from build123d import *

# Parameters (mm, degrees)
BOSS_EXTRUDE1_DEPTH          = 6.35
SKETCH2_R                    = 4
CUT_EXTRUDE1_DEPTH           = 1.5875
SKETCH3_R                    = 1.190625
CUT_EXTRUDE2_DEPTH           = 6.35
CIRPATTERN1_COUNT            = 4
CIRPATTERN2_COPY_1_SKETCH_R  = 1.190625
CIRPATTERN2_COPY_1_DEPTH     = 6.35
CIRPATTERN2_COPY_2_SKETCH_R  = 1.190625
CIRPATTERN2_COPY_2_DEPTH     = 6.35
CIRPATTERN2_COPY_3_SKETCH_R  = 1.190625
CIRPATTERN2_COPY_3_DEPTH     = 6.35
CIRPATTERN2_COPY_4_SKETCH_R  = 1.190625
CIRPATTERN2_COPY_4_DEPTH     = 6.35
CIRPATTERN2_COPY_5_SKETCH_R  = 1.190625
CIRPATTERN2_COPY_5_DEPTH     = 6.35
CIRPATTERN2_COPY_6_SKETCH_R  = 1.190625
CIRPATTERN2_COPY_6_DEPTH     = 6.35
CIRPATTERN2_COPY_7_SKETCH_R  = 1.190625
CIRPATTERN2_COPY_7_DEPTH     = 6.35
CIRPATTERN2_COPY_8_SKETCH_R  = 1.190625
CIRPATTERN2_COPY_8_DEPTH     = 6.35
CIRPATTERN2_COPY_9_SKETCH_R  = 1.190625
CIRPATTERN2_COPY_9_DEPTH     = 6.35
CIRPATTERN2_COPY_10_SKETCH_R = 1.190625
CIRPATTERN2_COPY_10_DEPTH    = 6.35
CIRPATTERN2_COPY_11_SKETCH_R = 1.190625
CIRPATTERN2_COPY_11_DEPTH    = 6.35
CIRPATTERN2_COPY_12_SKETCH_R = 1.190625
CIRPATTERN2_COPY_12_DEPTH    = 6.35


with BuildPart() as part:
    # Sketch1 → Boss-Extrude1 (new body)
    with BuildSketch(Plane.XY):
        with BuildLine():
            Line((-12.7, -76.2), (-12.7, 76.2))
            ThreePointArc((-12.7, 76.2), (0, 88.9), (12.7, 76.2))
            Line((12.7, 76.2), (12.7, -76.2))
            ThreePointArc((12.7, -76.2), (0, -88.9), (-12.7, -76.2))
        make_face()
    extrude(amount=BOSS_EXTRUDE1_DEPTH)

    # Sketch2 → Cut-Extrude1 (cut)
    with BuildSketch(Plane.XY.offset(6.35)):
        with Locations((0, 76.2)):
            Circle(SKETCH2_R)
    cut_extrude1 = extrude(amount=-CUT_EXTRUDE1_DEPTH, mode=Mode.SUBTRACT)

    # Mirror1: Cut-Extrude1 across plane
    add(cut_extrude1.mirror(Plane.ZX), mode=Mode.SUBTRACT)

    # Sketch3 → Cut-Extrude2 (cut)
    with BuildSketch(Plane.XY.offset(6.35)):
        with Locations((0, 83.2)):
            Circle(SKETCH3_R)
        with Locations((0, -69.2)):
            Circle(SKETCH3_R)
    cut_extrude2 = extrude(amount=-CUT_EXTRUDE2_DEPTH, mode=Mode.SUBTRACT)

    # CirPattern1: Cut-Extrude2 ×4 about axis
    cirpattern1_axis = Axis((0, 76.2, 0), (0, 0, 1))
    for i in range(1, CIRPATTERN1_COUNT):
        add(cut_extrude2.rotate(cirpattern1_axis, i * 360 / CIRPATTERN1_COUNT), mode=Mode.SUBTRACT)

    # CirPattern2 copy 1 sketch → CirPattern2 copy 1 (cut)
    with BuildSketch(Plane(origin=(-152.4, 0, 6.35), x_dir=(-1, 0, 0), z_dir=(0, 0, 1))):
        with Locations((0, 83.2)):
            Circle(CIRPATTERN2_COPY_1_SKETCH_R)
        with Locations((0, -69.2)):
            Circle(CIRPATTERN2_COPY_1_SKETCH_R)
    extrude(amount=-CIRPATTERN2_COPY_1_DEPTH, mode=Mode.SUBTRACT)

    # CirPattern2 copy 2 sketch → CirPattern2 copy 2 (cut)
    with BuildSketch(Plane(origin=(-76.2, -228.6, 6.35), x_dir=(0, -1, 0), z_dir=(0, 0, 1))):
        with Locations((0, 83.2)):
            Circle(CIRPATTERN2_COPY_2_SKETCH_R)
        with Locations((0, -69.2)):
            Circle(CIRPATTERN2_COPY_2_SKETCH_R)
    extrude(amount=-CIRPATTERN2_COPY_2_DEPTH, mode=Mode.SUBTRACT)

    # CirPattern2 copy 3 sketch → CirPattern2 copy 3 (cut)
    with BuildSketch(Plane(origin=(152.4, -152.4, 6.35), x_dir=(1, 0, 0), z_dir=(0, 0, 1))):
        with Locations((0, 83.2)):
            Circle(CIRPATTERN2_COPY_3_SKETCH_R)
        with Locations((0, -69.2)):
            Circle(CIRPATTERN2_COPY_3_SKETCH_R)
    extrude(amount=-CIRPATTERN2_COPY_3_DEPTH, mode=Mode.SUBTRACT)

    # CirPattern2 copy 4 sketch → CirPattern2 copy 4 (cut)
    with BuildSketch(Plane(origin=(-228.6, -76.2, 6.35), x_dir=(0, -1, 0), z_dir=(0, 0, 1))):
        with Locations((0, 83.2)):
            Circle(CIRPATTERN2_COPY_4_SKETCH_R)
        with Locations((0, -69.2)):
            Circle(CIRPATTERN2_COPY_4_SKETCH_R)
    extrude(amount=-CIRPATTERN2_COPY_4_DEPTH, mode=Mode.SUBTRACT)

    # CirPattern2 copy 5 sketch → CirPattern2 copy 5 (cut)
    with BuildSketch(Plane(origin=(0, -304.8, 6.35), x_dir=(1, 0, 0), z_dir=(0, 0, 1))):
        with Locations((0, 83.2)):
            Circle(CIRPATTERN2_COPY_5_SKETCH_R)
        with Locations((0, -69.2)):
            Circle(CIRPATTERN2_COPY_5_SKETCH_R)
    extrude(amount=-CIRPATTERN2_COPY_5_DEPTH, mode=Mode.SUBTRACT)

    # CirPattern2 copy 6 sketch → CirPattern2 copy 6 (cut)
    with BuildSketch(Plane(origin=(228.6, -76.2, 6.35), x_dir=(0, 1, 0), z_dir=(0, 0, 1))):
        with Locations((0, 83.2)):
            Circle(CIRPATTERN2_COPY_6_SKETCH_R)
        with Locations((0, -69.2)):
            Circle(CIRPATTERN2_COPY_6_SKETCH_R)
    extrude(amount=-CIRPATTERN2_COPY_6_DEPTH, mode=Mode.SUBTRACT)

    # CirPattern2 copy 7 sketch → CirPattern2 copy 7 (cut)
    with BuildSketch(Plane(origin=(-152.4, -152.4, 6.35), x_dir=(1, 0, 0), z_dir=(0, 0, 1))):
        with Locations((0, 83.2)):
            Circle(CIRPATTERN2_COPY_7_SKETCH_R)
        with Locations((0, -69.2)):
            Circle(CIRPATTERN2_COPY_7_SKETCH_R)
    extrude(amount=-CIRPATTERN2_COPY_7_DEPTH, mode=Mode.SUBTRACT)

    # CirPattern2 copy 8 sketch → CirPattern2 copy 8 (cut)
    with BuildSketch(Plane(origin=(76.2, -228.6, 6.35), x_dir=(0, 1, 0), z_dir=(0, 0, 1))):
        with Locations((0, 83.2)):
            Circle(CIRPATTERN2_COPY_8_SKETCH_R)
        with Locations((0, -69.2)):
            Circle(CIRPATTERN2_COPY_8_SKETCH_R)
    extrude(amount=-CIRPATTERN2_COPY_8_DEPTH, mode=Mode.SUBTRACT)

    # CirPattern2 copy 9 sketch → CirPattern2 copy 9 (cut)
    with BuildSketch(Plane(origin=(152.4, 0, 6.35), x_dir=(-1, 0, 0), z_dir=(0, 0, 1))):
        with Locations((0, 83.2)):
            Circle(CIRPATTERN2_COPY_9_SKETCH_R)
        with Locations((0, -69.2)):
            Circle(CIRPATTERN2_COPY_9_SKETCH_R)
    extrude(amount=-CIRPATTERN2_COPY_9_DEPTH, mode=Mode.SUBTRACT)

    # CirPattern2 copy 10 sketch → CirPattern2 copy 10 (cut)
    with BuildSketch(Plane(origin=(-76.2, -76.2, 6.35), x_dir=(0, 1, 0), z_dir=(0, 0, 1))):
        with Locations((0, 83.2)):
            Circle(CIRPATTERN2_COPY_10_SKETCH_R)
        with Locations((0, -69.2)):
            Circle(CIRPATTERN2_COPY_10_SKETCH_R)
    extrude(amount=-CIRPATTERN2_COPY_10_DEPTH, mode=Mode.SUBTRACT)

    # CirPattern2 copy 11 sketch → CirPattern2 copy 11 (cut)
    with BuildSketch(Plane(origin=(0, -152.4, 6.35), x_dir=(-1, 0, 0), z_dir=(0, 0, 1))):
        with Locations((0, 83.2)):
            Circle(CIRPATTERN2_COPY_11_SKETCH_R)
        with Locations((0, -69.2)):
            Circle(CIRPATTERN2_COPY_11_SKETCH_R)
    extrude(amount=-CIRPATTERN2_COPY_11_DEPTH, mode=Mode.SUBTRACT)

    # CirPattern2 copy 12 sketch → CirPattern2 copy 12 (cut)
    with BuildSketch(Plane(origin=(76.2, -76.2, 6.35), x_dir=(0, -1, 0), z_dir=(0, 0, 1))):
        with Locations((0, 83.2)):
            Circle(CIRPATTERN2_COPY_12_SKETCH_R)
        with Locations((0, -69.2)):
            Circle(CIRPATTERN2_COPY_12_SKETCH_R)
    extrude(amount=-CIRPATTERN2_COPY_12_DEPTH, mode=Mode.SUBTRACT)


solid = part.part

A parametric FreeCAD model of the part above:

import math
import FreeCAD as App
import Part
import Sketcher

V = App.Vector
Q = App.Units.Quantity

doc = App.newDocument("Part")
params = doc.addObject("Spreadsheet::Sheet", "Params")
for row, (alias, value) in enumerate([
    ("sketch1_radius", "0.5 in"),
    ("sketch1_height", "6 in"),
    ("pad1_length", "0.25 in"),
    ("pocket1_length", "0.0625 in"),
    ("sketch3_diameter", "0.09375 in"),
    ("pocket2_length", "0.25 in"),
    ("sketch4_diameter", "0.09375 in"),
    ("pocket3_length", "0.25 in"),
    ("sketch5_diameter", "0.09375 in"),
    ("pocket4_length", "0.25 in"),
    ("sketch6_diameter", "0.09375 in"),
    ("pocket5_length", "0.25 in"),
    ("sketch7_diameter", "0.09375 in"),
    ("pocket6_length", "0.25 in"),
    ("sketch8_diameter", "0.09375 in"),
    ("pocket7_length", "0.25 in"),
    ("sketch9_diameter", "0.09375 in"),
    ("pocket8_length", "0.25 in"),
    ("sketch10_diameter", "0.09375 in"),
    ("pocket9_length", "0.25 in"),
    ("sketch11_diameter", "0.09375 in"),
    ("pocket10_length", "0.25 in"),
    ("sketch12_diameter", "0.09375 in"),
    ("pocket11_length", "0.25 in"),
    ("sketch13_diameter", "0.09375 in"),
    ("pocket12_length", "0.25 in"),
    ("sketch14_diameter", "0.09375 in"),
    ("pocket13_length", "0.25 in"),
    ("sketch15_diameter", "0.09375 in"),
    ("pocket14_length", "0.25 in"),
], start=1):
    params.set(f"A{row}", alias)
    params.set(f"B{row}", "=" + value)
    params.setAlias(f"B{row}", alias)

body = doc.addObject("PartDesign::Body", "Body")

sketch1 = body.newObject("Sketcher::SketchObject", "Sketch")
sketch1.AttachmentSupport = (doc.getObject("XY_Plane"), [""])
sketch1.MapMode = "FlatFace"
sketch1.addGeometry(Part.LineSegment(V(-13, 76, 0), V(-13, -76, 0)), False)
sketch1.addGeometry(Part.ArcOfCircle(Part.Circle(V(0, -76, 0), V(0, 0, 1), 13), math.radians(180), math.radians(360)), False)
sketch1.addGeometry(Part.LineSegment(V(13, -76, 0), V(13, 76, 0)), False)
sketch1.addGeometry(Part.ArcOfCircle(Part.Circle(V(0, 76, 0), V(0, 0, 1), 13), math.radians(0), math.radians(180)), False)
sketch1.addConstraint(Sketcher.Constraint("Tangent", 0, 2, 1, 1))
sketch1.addConstraint(Sketcher.Constraint("Tangent", 1, 2, 2, 1))
sketch1.addConstraint(Sketcher.Constraint("Tangent", 2, 2, 3, 1))
sketch1.addConstraint(Sketcher.Constraint("Tangent", 3, 2, 0, 1))
sketch1.addConstraint(Sketcher.Constraint("Vertical", 0))
sketch1.addConstraint(Sketcher.Constraint("Vertical", 2))
sketch1.addConstraint(Sketcher.Constraint("Symmetric", 1, 3, 3, 3, -1, 1))
sketch1.addConstraint(Sketcher.Constraint("Radius", 1, Q("0.5 in")))
sketch1.addConstraint(Sketcher.Constraint("DistanceY", 0, 2, 0, 1, Q("6 in")))
sketch1.setExpression("Constraints[7]", "Params.sketch1_radius")
sketch1.setExpression("Constraints[8]", "Params.sketch1_height")
pad1 = body.newObject("PartDesign::Pad", "Pad")
pad1.Profile = sketch1
pad1.setExpression("Length", "Params.pad1_length")

sketch2 = body.newObject("Sketcher::SketchObject", "Sketch001")
sketch2.AttachmentSupport = (doc.getObject("XY_Plane"), [""])
sketch2.MapMode = "FlatFace"
sketch2.AttachmentOffset = App.Placement(V(0, 0, 0.25 * 25.4), App.Rotation())
sketch2.addGeometry(Part.Circle(V(0, 76.2, 0), V(0, 0, 1), 4), False)
sketch2.addConstraint(Sketcher.Constraint("PointOnObject", 0, 3, -2))
sketch2.addConstraint(Sketcher.Constraint("DistanceY", -1, 1, 0, 3, Q("3 in")))
sketch2.addConstraint(Sketcher.Constraint("Diameter", 0, Q("8 mm")))
pocket1 = body.newObject("PartDesign::Pocket", "Pocket")
pocket1.Profile = sketch2
pocket1.setExpression("Length", "Params.pocket1_length")
doc.recompute()

mirrored = body.newObject("PartDesign::Mirrored", "Mirrored")
mirrored.Originals = [pocket1]
mirrored.MirrorPlane = (doc.getObject("XZ_Plane"), [""])
body.Tip = mirrored

sketch3 = body.newObject("Sketcher::SketchObject", "Sketch002")
sketch3.AttachmentSupport = (doc.getObject("XY_Plane"), [""])
sketch3.MapMode = "FlatFace"
sketch3.AttachmentOffset = App.Placement(V(0, 0, 0.25 * 25.4), App.Rotation())
sketch3.addGeometry(Part.Circle(V(0, 83.2, 0), V(0, 0, 1), 1.2), False)
sketch3.addGeometry(Part.Circle(V(0, -69.2, 0), V(0, 0, 1), 1.2), False)
sketch3.addConstraint(Sketcher.Constraint("Equal", 0, 1))
sketch3.addConstraint(Sketcher.Constraint("PointOnObject", 0, 3, -2))
sketch3.addConstraint(Sketcher.Constraint("PointOnObject", 1, 3, -2))
sketch3.addConstraint(Sketcher.Constraint("Diameter", 0, Q("0.09375 in")))
sketch3.addConstraint(Sketcher.Constraint("DistanceY", 1, 3, 0, 3, Q("6 in")))
sketch3.addConstraint(Sketcher.Constraint("DistanceY", -1, 1, 0, 3, Q("83.2 mm")))
sketch3.setExpression("Constraints[3]", "Params.sketch3_diameter")
pocket2 = body.newObject("PartDesign::Pocket", "Pocket001")
pocket2.Profile = sketch3
pocket2.setExpression("Length", "Params.pocket2_length")
doc.recompute()

datumline = body.newObject("PartDesign::Line", "DatumLine")
datumline.Placement = App.Placement(V(0, 76.2, 0), App.Rotation(V(0, 0, 1), V(0, 0, 1)))
polarpattern = body.newObject("PartDesign::PolarPattern", "PolarPattern")
polarpattern.Originals = [pocket2]
polarpattern.Axis = (datumline, [""])
polarpattern.Angle = 360
polarpattern.Occurrences = 4
body.Tip = polarpattern

sketch4 = body.newObject("Sketcher::SketchObject", "Sketch003")
sketch4.AttachmentSupport = (doc.getObject("XY_Plane"), [""])
sketch4.MapMode = "FlatFace"
sketch4.AttachmentOffset = App.Placement(V(0, 0, 0.25 * 25.4), App.Rotation())
sketch4.addGeometry(Part.Circle(V(-152.4, -83.2, 0), V(0, 0, 1), 1.2), False)
sketch4.addGeometry(Part.Circle(V(-152.4, 69.2, 0), V(0, 0, 1), 1.2), False)
sketch4.addConstraint(Sketcher.Constraint("Equal", 0, 1))
sketch4.addConstraint(Sketcher.Constraint("Vertical", 0, 3, 1, 3))
sketch4.addConstraint(Sketcher.Constraint("Diameter", 0, Q("0.09375 in")))
sketch4.addConstraint(Sketcher.Constraint("DistanceX", 0, 3, -1, 1, Q("6 in")))
sketch4.addConstraint(Sketcher.Constraint("DistanceY", 0, 3, 1, 3, Q("6 in")))
sketch4.addConstraint(Sketcher.Constraint("DistanceY", 0, 3, -1, 1, Q("83.2 mm")))
sketch4.setExpression("Constraints[2]", "Params.sketch4_diameter")
pocket3 = body.newObject("PartDesign::Pocket", "Pocket002")
pocket3.Profile = sketch4
pocket3.setExpression("Length", "Params.pocket3_length")

sketch5 = body.newObject("Sketcher::SketchObject", "Sketch004")
sketch5.AttachmentSupport = (doc.getObject("XY_Plane"), [""])
sketch5.MapMode = "FlatFace"
sketch5.AttachmentOffset = App.Placement(V(0, 0, 0.25 * 25.4), App.Rotation())
sketch5.addGeometry(Part.Circle(V(7, -228.6, 0), V(0, 0, 1), 1.2), False)
sketch5.addGeometry(Part.Circle(V(-145.4, -228.6, 0), V(0, 0, 1), 1.2), False)
sketch5.addConstraint(Sketcher.Constraint("Equal", 0, 1))
sketch5.addConstraint(Sketcher.Constraint("Horizontal", 0, 3, 1, 3))
sketch5.addConstraint(Sketcher.Constraint("Diameter", 0, Q("0.09375 in")))
sketch5.addConstraint(Sketcher.Constraint("DistanceY", 0, 3, -1, 1, Q("9 in")))
sketch5.addConstraint(Sketcher.Constraint("DistanceX", 1, 3, 0, 3, Q("6 in")))
sketch5.addConstraint(Sketcher.Constraint("DistanceX", -1, 1, 0, 3, Q("7 mm")))
sketch5.setExpression("Constraints[2]", "Params.sketch5_diameter")
pocket4 = body.newObject("PartDesign::Pocket", "Pocket003")
pocket4.Profile = sketch5
pocket4.setExpression("Length", "Params.pocket4_length")

sketch6 = body.newObject("Sketcher::SketchObject", "Sketch005")
sketch6.AttachmentSupport = (doc.getObject("XY_Plane"), [""])
sketch6.MapMode = "FlatFace"
sketch6.AttachmentOffset = App.Placement(V(0, 0, 0.25 * 25.4), App.Rotation())
sketch6.addGeometry(Part.Circle(V(152.4, -69.2, 0), V(0, 0, 1), 1.2), False)
sketch6.addGeometry(Part.Circle(V(152.4, -221.6, 0), V(0, 0, 1), 1.2), False)
sketch6.addConstraint(Sketcher.Constraint("Equal", 0, 1))
sketch6.addConstraint(Sketcher.Constraint("Vertical", 0, 3, 1, 3))
sketch6.addConstraint(Sketcher.Constraint("Diameter", 0, Q("0.09375 in")))
sketch6.addConstraint(Sketcher.Constraint("DistanceX", -1, 1, 0, 3, Q("6 in")))
sketch6.addConstraint(Sketcher.Constraint("DistanceY", 1, 3, 0, 3, Q("6 in")))
sketch6.addConstraint(Sketcher.Constraint("DistanceY", 0, 3, -1, 1, Q("69.2 mm")))
sketch6.setExpression("Constraints[2]", "Params.sketch6_diameter")
pocket5 = body.newObject("PartDesign::Pocket", "Pocket004")
pocket5.Profile = sketch6
pocket5.setExpression("Length", "Params.pocket5_length")

sketch7 = body.newObject("Sketcher::SketchObject", "Sketch006")
sketch7.AttachmentSupport = (doc.getObject("XY_Plane"), [""])
sketch7.MapMode = "FlatFace"
sketch7.AttachmentOffset = App.Placement(V(0, 0, 0.25 * 25.4), App.Rotation())
sketch7.addGeometry(Part.Circle(V(-145.4, -76.2, 0), V(0, 0, 1), 1.2), False)
sketch7.addGeometry(Part.Circle(V(-297.8, -76.2, 0), V(0, 0, 1), 1.2), False)
sketch7.addConstraint(Sketcher.Constraint("Equal", 0, 1))
sketch7.addConstraint(Sketcher.Constraint("Horizontal", 0, 3, 1, 3))
sketch7.addConstraint(Sketcher.Constraint("Diameter", 0, Q("0.09375 in")))
sketch7.addConstraint(Sketcher.Constraint("DistanceY", 0, 3, -1, 1, Q("3 in")))
sketch7.addConstraint(Sketcher.Constraint("DistanceX", 1, 3, 0, 3, Q("6 in")))
sketch7.addConstraint(Sketcher.Constraint("DistanceX", 0, 3, -1, 1, Q("145.4 mm")))
sketch7.setExpression("Constraints[2]", "Params.sketch7_diameter")
pocket6 = body.newObject("PartDesign::Pocket", "Pocket005")
pocket6.Profile = sketch7
pocket6.setExpression("Length", "Params.pocket6_length")

sketch8 = body.newObject("Sketcher::SketchObject", "Sketch007")
sketch8.AttachmentSupport = (doc.getObject("XY_Plane"), [""])
sketch8.MapMode = "FlatFace"
sketch8.AttachmentOffset = App.Placement(V(0, 0, 0.25 * 25.4), App.Rotation())
sketch8.addGeometry(Part.Circle(V(0, -221.6, 0), V(0, 0, 1), 1.2), False)
sketch8.addGeometry(Part.Circle(V(0, -374, 0), V(0, 0, 1), 1.2), False)
sketch8.addConstraint(Sketcher.Constraint("Equal", 0, 1))
sketch8.addConstraint(Sketcher.Constraint("PointOnObject", 0, 3, -2))
sketch8.addConstraint(Sketcher.Constraint("PointOnObject", 1, 3, -2))
sketch8.addConstraint(Sketcher.Constraint("Diameter", 0, Q("0.09375 in")))
sketch8.addConstraint(Sketcher.Constraint("DistanceY", 1, 3, 0, 3, Q("6 in")))
sketch8.addConstraint(Sketcher.Constraint("DistanceY", 0, 3, -1, 1, Q("221.6 mm")))
sketch8.setExpression("Constraints[3]", "Params.sketch8_diameter")
pocket7 = body.newObject("PartDesign::Pocket", "Pocket006")
pocket7.Profile = sketch8
pocket7.setExpression("Length", "Params.pocket7_length")

sketch9 = body.newObject("Sketcher::SketchObject", "Sketch008")
sketch9.AttachmentSupport = (doc.getObject("XY_Plane"), [""])
sketch9.MapMode = "FlatFace"
sketch9.AttachmentOffset = App.Placement(V(0, 0, 0.25 * 25.4), App.Rotation())
sketch9.addGeometry(Part.Circle(V(145.4, -76.2, 0), V(0, 0, 1), 1.2), False)
sketch9.addGeometry(Part.Circle(V(297.8, -76.2, 0), V(0, 0, 1), 1.2), False)
sketch9.addConstraint(Sketcher.Constraint("Equal", 0, 1))
sketch9.addConstraint(Sketcher.Constraint("Horizontal", 0, 3, 1, 3))
sketch9.addConstraint(Sketcher.Constraint("Diameter", 0, Q("0.09375 in")))
sketch9.addConstraint(Sketcher.Constraint("DistanceY", 0, 3, -1, 1, Q("3 in")))
sketch9.addConstraint(Sketcher.Constraint("DistanceX", 0, 3, 1, 3, Q("6 in")))
sketch9.addConstraint(Sketcher.Constraint("DistanceX", -1, 1, 0, 3, Q("145.4 mm")))
sketch9.setExpression("Constraints[2]", "Params.sketch9_diameter")
pocket8 = body.newObject("PartDesign::Pocket", "Pocket007")
pocket8.Profile = sketch9
pocket8.setExpression("Length", "Params.pocket8_length")

sketch10 = body.newObject("Sketcher::SketchObject", "Sketch009")
sketch10.AttachmentSupport = (doc.getObject("XY_Plane"), [""])
sketch10.MapMode = "FlatFace"
sketch10.AttachmentOffset = App.Placement(V(0, 0, 0.25 * 25.4), App.Rotation())
sketch10.addGeometry(Part.Circle(V(-152.4, -69.2, 0), V(0, 0, 1), 1.2), False)
sketch10.addGeometry(Part.Circle(V(-152.4, -221.6, 0), V(0, 0, 1), 1.2), False)
sketch10.addConstraint(Sketcher.Constraint("Equal", 0, 1))
sketch10.addConstraint(Sketcher.Constraint("Vertical", 0, 3, 1, 3))
sketch10.addConstraint(Sketcher.Constraint("Diameter", 0, Q("0.09375 in")))
sketch10.addConstraint(Sketcher.Constraint("DistanceX", 0, 3, -1, 1, Q("6 in")))
sketch10.addConstraint(Sketcher.Constraint("DistanceY", 1, 3, 0, 3, Q("6 in")))
sketch10.addConstraint(Sketcher.Constraint("DistanceY", 0, 3, -1, 1, Q("69.2 mm")))
sketch10.setExpression("Constraints[2]", "Params.sketch10_diameter")
pocket9 = body.newObject("PartDesign::Pocket", "Pocket008")
pocket9.Profile = sketch10
pocket9.setExpression("Length", "Params.pocket9_length")

sketch11 = body.newObject("Sketcher::SketchObject", "Sketch010")
sketch11.AttachmentSupport = (doc.getObject("XY_Plane"), [""])
sketch11.MapMode = "FlatFace"
sketch11.AttachmentOffset = App.Placement(V(0, 0, 0.25 * 25.4), App.Rotation())
sketch11.addGeometry(Part.Circle(V(-7, -228.6, 0), V(0, 0, 1), 1.2), False)
sketch11.addGeometry(Part.Circle(V(145.4, -228.6, 0), V(0, 0, 1), 1.2), False)
sketch11.addConstraint(Sketcher.Constraint("Equal", 0, 1))
sketch11.addConstraint(Sketcher.Constraint("Horizontal", 0, 3, 1, 3))
sketch11.addConstraint(Sketcher.Constraint("Diameter", 0, Q("0.09375 in")))
sketch11.addConstraint(Sketcher.Constraint("DistanceY", 0, 3, -1, 1, Q("9 in")))
sketch11.addConstraint(Sketcher.Constraint("DistanceX", 0, 3, 1, 3, Q("6 in")))
sketch11.addConstraint(Sketcher.Constraint("DistanceX", 0, 3, -1, 1, Q("7 mm")))
sketch11.setExpression("Constraints[2]", "Params.sketch11_diameter")
pocket10 = body.newObject("PartDesign::Pocket", "Pocket009")
pocket10.Profile = sketch11
pocket10.setExpression("Length", "Params.pocket10_length")

sketch12 = body.newObject("Sketcher::SketchObject", "Sketch011")
sketch12.AttachmentSupport = (doc.getObject("XY_Plane"), [""])
sketch12.MapMode = "FlatFace"
sketch12.AttachmentOffset = App.Placement(V(0, 0, 0.25 * 25.4), App.Rotation())
sketch12.addGeometry(Part.Circle(V(152.4, -83.2, 0), V(0, 0, 1), 1.2), False)
sketch12.addGeometry(Part.Circle(V(152.4, 69.2, 0), V(0, 0, 1), 1.2), False)
sketch12.addConstraint(Sketcher.Constraint("Equal", 0, 1))
sketch12.addConstraint(Sketcher.Constraint("Vertical", 0, 3, 1, 3))
sketch12.addConstraint(Sketcher.Constraint("Diameter", 0, Q("0.09375 in")))
sketch12.addConstraint(Sketcher.Constraint("DistanceX", -1, 1, 0, 3, Q("6 in")))
sketch12.addConstraint(Sketcher.Constraint("DistanceY", 0, 3, 1, 3, Q("6 in")))
sketch12.addConstraint(Sketcher.Constraint("DistanceY", 0, 3, -1, 1, Q("83.2 mm")))
sketch12.setExpression("Constraints[2]", "Params.sketch12_diameter")
pocket11 = body.newObject("PartDesign::Pocket", "Pocket010")
pocket11.Profile = sketch12
pocket11.setExpression("Length", "Params.pocket11_length")

sketch13 = body.newObject("Sketcher::SketchObject", "Sketch012")
sketch13.AttachmentSupport = (doc.getObject("XY_Plane"), [""])
sketch13.MapMode = "FlatFace"
sketch13.AttachmentOffset = App.Placement(V(0, 0, 0.25 * 25.4), App.Rotation())
sketch13.addGeometry(Part.Circle(V(-159.4, -76.2, 0), V(0, 0, 1), 1.2), False)
sketch13.addGeometry(Part.Circle(V(-7, -76.2, 0), V(0, 0, 1), 1.2), False)
sketch13.addConstraint(Sketcher.Constraint("Equal", 0, 1))
sketch13.addConstraint(Sketcher.Constraint("Horizontal", 0, 3, 1, 3))
sketch13.addConstraint(Sketcher.Constraint("Diameter", 0, Q("0.09375 in")))
sketch13.addConstraint(Sketcher.Constraint("DistanceY", 0, 3, -1, 1, Q("3 in")))
sketch13.addConstraint(Sketcher.Constraint("DistanceX", 0, 3, 1, 3, Q("6 in")))
sketch13.addConstraint(Sketcher.Constraint("DistanceX", 0, 3, -1, 1, Q("159.4 mm")))
sketch13.setExpression("Constraints[2]", "Params.sketch13_diameter")
pocket12 = body.newObject("PartDesign::Pocket", "Pocket011")
pocket12.Profile = sketch13
pocket12.setExpression("Length", "Params.pocket12_length")

sketch14 = body.newObject("Sketcher::SketchObject", "Sketch013")
sketch14.AttachmentSupport = (doc.getObject("XY_Plane"), [""])
sketch14.MapMode = "FlatFace"
sketch14.AttachmentOffset = App.Placement(V(0, 0, 0.25 * 25.4), App.Rotation())
sketch14.addGeometry(Part.Circle(V(0, -235.6, 0), V(0, 0, 1), 1.2), False)
sketch14.addGeometry(Part.Circle(V(0, -83.2, 0), V(0, 0, 1), 1.2), False)
sketch14.addConstraint(Sketcher.Constraint("Equal", 0, 1))
sketch14.addConstraint(Sketcher.Constraint("PointOnObject", 0, 3, -2))
sketch14.addConstraint(Sketcher.Constraint("PointOnObject", 1, 3, -2))
sketch14.addConstraint(Sketcher.Constraint("Diameter", 0, Q("0.09375 in")))
sketch14.addConstraint(Sketcher.Constraint("DistanceY", 0, 3, 1, 3, Q("6 in")))
sketch14.addConstraint(Sketcher.Constraint("DistanceY", 0, 3, -1, 1, Q("235.6 mm")))
sketch14.setExpression("Constraints[3]", "Params.sketch14_diameter")
pocket13 = body.newObject("PartDesign::Pocket", "Pocket012")
pocket13.Profile = sketch14
pocket13.setExpression("Length", "Params.pocket13_length")

sketch15 = body.newObject("Sketcher::SketchObject", "Sketch014")
sketch15.AttachmentSupport = (doc.getObject("XY_Plane"), [""])
sketch15.MapMode = "FlatFace"
sketch15.AttachmentOffset = App.Placement(V(0, 0, 0.25 * 25.4), App.Rotation())
sketch15.addGeometry(Part.Circle(V(159.4, -76.2, 0), V(0, 0, 1), 1.2), False)
sketch15.addGeometry(Part.Circle(V(7, -76.2, 0), V(0, 0, 1), 1.2), False)
sketch15.addConstraint(Sketcher.Constraint("Equal", 0, 1))
sketch15.addConstraint(Sketcher.Constraint("Horizontal", 0, 3, 1, 3))
sketch15.addConstraint(Sketcher.Constraint("Diameter", 0, Q("0.09375 in")))
sketch15.addConstraint(Sketcher.Constraint("DistanceY", 0, 3, -1, 1, Q("3 in")))
sketch15.addConstraint(Sketcher.Constraint("DistanceX", 1, 3, 0, 3, Q("6 in")))
sketch15.addConstraint(Sketcher.Constraint("DistanceX", -1, 1, 0, 3, Q("159.4 mm")))
sketch15.setExpression("Constraints[2]", "Params.sketch15_diameter")
pocket14 = body.newObject("PartDesign::Pocket", "Pocket013")
pocket14.Profile = sketch15
pocket14.setExpression("Length", "Params.pocket14_length")

doc.recompute()
